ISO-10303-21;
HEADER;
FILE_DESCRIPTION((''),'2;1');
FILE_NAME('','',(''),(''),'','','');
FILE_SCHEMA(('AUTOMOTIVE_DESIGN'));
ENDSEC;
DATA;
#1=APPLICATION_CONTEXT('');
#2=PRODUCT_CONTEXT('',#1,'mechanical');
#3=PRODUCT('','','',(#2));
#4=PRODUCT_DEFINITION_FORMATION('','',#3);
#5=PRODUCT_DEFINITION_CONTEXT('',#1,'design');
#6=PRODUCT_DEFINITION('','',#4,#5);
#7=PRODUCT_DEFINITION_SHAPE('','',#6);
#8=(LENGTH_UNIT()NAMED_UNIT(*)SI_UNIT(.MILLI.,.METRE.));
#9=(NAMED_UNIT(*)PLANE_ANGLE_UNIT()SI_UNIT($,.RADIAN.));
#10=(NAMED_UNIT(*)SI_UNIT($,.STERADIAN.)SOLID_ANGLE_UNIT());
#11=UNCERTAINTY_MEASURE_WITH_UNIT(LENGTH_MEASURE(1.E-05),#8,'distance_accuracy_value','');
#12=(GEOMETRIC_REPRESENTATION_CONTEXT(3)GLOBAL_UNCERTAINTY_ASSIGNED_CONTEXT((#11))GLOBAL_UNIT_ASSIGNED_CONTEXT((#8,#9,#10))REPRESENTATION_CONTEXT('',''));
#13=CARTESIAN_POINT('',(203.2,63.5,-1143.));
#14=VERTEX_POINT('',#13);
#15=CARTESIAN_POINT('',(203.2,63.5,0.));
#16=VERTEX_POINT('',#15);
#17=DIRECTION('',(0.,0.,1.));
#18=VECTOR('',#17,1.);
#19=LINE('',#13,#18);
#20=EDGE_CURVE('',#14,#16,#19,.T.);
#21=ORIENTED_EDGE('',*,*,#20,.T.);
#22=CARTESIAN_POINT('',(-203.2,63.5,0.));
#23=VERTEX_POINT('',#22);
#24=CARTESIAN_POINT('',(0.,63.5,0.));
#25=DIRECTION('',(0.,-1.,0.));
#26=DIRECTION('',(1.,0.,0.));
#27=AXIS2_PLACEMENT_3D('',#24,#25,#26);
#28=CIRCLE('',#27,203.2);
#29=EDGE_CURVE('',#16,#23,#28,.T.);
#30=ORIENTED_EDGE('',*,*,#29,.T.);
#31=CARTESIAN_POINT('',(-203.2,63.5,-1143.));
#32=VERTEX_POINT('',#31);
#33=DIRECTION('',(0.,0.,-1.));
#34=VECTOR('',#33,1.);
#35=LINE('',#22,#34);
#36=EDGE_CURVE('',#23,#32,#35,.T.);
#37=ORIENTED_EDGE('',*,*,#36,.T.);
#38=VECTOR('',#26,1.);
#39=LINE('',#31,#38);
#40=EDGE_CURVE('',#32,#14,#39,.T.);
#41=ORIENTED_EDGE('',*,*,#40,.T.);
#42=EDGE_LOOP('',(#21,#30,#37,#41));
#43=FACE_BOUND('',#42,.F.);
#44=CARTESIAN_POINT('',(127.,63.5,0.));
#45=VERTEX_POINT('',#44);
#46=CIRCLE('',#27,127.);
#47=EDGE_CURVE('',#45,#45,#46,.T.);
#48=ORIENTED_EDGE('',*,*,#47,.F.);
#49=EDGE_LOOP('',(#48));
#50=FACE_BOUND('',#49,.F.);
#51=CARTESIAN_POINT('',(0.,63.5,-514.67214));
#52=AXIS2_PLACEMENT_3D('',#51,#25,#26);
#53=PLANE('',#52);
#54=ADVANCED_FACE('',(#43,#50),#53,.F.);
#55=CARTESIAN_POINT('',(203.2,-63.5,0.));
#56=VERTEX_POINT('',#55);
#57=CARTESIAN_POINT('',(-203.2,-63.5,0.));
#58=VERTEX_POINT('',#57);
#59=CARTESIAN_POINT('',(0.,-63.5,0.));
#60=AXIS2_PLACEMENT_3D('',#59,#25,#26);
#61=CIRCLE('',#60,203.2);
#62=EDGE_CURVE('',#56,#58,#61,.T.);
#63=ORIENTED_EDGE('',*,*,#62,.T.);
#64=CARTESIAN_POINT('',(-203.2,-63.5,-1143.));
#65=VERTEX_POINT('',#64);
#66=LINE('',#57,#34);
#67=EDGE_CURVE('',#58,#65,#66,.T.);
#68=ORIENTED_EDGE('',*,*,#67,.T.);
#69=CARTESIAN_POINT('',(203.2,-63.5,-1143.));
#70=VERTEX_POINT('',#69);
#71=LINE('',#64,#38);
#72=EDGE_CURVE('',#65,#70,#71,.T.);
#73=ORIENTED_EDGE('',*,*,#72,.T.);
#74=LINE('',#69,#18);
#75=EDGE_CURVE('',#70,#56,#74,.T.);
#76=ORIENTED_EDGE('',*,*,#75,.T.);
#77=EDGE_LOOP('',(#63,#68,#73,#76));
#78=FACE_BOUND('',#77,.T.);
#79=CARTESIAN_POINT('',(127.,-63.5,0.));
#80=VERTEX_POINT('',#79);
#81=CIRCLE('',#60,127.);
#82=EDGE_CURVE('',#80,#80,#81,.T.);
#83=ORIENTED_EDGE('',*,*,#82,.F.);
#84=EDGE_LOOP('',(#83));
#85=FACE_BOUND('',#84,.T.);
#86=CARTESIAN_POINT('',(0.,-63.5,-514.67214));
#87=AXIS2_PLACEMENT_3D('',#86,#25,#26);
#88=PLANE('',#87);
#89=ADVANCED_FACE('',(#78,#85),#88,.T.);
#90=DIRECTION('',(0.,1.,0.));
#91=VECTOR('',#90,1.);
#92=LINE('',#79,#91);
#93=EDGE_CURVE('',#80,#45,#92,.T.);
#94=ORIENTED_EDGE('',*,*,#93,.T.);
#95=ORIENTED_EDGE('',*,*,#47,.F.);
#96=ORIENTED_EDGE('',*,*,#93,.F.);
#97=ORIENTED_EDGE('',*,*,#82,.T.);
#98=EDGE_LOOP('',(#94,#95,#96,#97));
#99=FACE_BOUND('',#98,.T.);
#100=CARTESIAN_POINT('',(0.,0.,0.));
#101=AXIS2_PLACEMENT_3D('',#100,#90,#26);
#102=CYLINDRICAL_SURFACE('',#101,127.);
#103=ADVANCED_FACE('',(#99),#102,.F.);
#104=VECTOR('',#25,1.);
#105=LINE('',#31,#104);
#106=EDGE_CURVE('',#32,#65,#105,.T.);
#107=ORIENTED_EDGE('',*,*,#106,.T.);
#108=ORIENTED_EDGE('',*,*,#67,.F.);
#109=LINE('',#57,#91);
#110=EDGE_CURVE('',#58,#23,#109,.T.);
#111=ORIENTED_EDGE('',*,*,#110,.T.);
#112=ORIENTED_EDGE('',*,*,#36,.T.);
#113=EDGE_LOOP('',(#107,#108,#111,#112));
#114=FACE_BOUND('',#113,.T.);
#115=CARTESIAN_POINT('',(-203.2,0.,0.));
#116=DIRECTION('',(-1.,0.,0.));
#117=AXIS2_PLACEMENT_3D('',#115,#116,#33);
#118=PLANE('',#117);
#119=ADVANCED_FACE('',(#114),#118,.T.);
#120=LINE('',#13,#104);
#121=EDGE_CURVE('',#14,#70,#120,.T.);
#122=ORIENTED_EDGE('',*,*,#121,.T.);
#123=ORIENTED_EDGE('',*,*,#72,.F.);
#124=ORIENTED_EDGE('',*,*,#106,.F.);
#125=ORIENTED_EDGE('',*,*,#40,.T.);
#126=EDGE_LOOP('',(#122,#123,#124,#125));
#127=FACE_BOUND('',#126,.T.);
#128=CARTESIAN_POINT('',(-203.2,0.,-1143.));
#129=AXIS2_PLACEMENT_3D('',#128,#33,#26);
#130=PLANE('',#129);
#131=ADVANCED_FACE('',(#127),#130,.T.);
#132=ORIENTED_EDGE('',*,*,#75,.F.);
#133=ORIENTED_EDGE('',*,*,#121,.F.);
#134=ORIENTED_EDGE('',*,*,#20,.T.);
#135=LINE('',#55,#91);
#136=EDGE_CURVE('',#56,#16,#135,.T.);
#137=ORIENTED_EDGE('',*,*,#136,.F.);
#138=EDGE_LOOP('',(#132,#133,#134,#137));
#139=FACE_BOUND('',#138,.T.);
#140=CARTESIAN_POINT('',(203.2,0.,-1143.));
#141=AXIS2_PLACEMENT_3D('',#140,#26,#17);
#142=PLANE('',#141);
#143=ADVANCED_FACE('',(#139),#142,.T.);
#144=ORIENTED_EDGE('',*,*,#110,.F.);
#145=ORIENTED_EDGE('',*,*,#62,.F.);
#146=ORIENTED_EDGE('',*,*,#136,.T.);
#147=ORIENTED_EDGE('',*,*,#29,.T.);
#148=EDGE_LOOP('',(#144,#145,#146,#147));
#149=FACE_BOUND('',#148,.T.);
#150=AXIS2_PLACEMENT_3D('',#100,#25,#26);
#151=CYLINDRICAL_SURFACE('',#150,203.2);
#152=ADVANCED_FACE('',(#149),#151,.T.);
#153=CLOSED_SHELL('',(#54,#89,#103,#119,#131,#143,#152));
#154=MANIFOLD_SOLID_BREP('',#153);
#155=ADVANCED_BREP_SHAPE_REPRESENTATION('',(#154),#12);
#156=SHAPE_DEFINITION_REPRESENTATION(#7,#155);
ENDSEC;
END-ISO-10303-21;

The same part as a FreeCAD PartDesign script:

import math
import FreeCAD as App
import Part
import Sketcher

V = App.Vector
Q = App.Units.Quantity

doc = App.newDocument("Part")
body = doc.addObject("PartDesign::Body", "Body")

# Sketch on XZ plane
sketch1 = body.newObject("Sketcher::SketchObject", "Sketch")
sketch1.AttachmentSupport = (doc.getObject("XZ_Plane"), [""])
sketch1.MapMode = "FlatFace"
sketch1.addGeometry([
    Part.LineSegment(V(-203, 0, 0), V(-203, -1143, 0)),  # 0
    Part.LineSegment(V(-203, -1143, 0), V(203, -1143, 0)),  # 1
    Part.LineSegment(V(203, -1143, 0), V(203, 0, 0)),  # 2
    Part.ArcOfCircle(Part.Circle(V(0, 0, 0), V(0, 0, 1), 203), math.radians(0), math.radians(180)),  # 3
    Part.Circle(V(0, 0, 0), V(0, 0, 1), 127),  # 4
], False)
sketch1.addConstraint([
    Sketcher.Constraint("Coincident", 0, 2, 1, 1),
    Sketcher.Constraint("Coincident", 1, 2, 2, 1),
    Sketcher.Constraint("Tangent", 2, 2, 3, 1),
    Sketcher.Constraint("Tangent", 3, 2, 0, 1),
    Sketcher.Constraint("Vertical", 0),
    Sketcher.Constraint("Horizontal", 1),
    Sketcher.Constraint("Vertical", 2),
    Sketcher.Constraint("Coincident", 3, 3, -1, 1),
    Sketcher.Constraint("Coincident", 4, 3, -1, 1),
    Sketcher.Constraint("Diameter", 4, Q("10 in")),
    Sketcher.Constraint("Radius", 3, Q("8 in")),
    Sketcher.Constraint("DistanceY", 0, 2, 0, 1, Q("45 in")),
])
pad1 = body.newObject("PartDesign::Pad", "Pad")
pad1.Profile = sketch1
pad1.Length = Q("5 in")
pad1.Midplane = True

doc.recompute()
